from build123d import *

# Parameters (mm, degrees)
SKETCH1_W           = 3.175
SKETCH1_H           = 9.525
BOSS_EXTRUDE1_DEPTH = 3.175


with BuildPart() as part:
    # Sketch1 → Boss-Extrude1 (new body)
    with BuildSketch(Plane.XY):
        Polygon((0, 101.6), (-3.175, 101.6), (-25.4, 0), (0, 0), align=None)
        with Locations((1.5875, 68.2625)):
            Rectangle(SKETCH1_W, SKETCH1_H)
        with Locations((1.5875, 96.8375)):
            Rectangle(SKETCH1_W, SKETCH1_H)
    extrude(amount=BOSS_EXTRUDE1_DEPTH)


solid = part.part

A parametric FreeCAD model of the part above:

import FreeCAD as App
import Part
import Sketcher

V = App.Vector
Q = App.Units.Quantity

doc = App.newDocument("Part")
body = doc.addObject("PartDesign::Body", "Body")

# Sketch on XY plane
sketch1 = doc.addObject("Sketcher::SketchObject", "Sketch")
body.addObject(sketch1)
sketch1.AttachmentSupport = (doc.XY_Plane, [""])
sketch1.MapMode = "FlatFace"
sketch1.addGeometry(Part.LineSegment(V(-3.175, 101.6, 0), V(-25.4, 0, 0)), False)
sketch1.addGeometry(Part.LineSegment(V(-25.4, 0, 0), V(0, 0, 0)), False)
sketch1.addGeometry(Part.LineSegment(V(0, 0, 0), V(0, 63.5, 0)), False)
sketch1.addGeometry(Part.LineSegment(V(0, 63.5, 0), V(3.175, 63.5, 0)), False)
sketch1.addGeometry(Part.LineSegment(V(3.175, 63.5, 0), V(3.175, 73.025, 0)), False)
sketch1.addGeometry(Part.LineSegment(V(3.175, 73.025, 0), V(0, 73.025, 0)), False)
sketch1.addGeometry(Part.LineSegment(V(0, 73.025, 0), V(0, 92.075, 0)), False)
sketch1.addGeometry(Part.LineSegment(V(0, 92.075, 0), V(3.175, 92.075, 0)), False)
sketch1.addGeometry(Part.LineSegment(V(3.175, 92.075, 0), V(3.175, 101.6, 0)), False)
sketch1.addGeometry(Part.LineSegment(V(3.175, 101.6, 0), V(-3.175, 101.6, 0)), False)
sketch1.addConstraint(Sketcher.Constraint("Coincident", 0, 2, 1, 1))
sketch1.addConstraint(Sketcher.Constraint("Coincident", 1, 2, 2, 1))
sketch1.addConstraint(Sketcher.Constraint("Coincident", 2, 2, 3, 1))
sketch1.addConstraint(Sketcher.Constraint("Coincident", 3, 2, 4, 1))
sketch1.addConstraint(Sketcher.Constraint("Coincident", 4, 2, 5, 1))
sketch1.addConstraint(Sketcher.Constraint("Coincident", 5, 2, 6, 1))
sketch1.addConstraint(Sketcher.Constraint("Coincident", 6, 2, 7, 1))
sketch1.addConstraint(Sketcher.Constraint("Coincident", 7, 2, 8, 1))
sketch1.addConstraint(Sketcher.Constraint("Coincident", 8, 2, 9, 1))
sketch1.addConstraint(Sketcher.Constraint("Coincident", 9, 2, 0, 1))
sketch1.addConstraint(Sketcher.Constraint("Horizontal", 1))
sketch1.addConstraint(Sketcher.Constraint("Vertical", 2))
sketch1.addConstraint(Sketcher.Constraint("Horizontal", 3))
sketch1.addConstraint(Sketcher.Constraint("Vertical", 4))
sketch1.addConstraint(Sketcher.Constraint("Horizontal", 5))
sketch1.addConstraint(Sketcher.Constraint("Vertical", 6))
sketch1.addConstraint(Sketcher.Constraint("Horizontal", 7))
sketch1.addConstraint(Sketcher.Constraint("Vertical", 8))
sketch1.addConstraint(Sketcher.Constraint("Horizontal", 9))
sketch1.addConstraint(Sketcher.Constraint("Coincident", 1, 2, -1, 1))
sketch1.addConstraint(Sketcher.Constraint("PointOnObject", 5, 2, -2))
sketch1.addConstraint(Sketcher.Constraint("Vertical", 4, 2, 7, 2))
sketch1.addConstraint(Sketcher.Constraint("Equal", 4, 8))
sketch1.addConstraint(Sketcher.Constraint("DistanceX", 1, 1, 1, 2, Q("1 in")))
sketch1.addConstraint(Sketcher.Constraint("DistanceY", 2, 1, 2, 2, Q("2.5 in")))
sketch1.addConstraint(Sketcher.Constraint("DistanceY", -1, 1, 8, 2, Q("4 in")))
sketch1.addConstraint(Sketcher.Constraint("DistanceX", 9, 2, 9, 1, Q("0.25 in")))
sketch1.addConstraint(Sketcher.Constraint("DistanceY", 6, 1, 6, 2, Q("0.75 in")))
sketch1.addConstraint(Sketcher.Constraint("DistanceX", 3, 1, 3, 2, Q("0.125 in")))
pad1 = doc.addObject("PartDesign::Pad", "Pad")
body.addObject(pad1)
pad1.Profile = sketch1
pad1.Length = Q("0.125 in")

doc.recompute()
